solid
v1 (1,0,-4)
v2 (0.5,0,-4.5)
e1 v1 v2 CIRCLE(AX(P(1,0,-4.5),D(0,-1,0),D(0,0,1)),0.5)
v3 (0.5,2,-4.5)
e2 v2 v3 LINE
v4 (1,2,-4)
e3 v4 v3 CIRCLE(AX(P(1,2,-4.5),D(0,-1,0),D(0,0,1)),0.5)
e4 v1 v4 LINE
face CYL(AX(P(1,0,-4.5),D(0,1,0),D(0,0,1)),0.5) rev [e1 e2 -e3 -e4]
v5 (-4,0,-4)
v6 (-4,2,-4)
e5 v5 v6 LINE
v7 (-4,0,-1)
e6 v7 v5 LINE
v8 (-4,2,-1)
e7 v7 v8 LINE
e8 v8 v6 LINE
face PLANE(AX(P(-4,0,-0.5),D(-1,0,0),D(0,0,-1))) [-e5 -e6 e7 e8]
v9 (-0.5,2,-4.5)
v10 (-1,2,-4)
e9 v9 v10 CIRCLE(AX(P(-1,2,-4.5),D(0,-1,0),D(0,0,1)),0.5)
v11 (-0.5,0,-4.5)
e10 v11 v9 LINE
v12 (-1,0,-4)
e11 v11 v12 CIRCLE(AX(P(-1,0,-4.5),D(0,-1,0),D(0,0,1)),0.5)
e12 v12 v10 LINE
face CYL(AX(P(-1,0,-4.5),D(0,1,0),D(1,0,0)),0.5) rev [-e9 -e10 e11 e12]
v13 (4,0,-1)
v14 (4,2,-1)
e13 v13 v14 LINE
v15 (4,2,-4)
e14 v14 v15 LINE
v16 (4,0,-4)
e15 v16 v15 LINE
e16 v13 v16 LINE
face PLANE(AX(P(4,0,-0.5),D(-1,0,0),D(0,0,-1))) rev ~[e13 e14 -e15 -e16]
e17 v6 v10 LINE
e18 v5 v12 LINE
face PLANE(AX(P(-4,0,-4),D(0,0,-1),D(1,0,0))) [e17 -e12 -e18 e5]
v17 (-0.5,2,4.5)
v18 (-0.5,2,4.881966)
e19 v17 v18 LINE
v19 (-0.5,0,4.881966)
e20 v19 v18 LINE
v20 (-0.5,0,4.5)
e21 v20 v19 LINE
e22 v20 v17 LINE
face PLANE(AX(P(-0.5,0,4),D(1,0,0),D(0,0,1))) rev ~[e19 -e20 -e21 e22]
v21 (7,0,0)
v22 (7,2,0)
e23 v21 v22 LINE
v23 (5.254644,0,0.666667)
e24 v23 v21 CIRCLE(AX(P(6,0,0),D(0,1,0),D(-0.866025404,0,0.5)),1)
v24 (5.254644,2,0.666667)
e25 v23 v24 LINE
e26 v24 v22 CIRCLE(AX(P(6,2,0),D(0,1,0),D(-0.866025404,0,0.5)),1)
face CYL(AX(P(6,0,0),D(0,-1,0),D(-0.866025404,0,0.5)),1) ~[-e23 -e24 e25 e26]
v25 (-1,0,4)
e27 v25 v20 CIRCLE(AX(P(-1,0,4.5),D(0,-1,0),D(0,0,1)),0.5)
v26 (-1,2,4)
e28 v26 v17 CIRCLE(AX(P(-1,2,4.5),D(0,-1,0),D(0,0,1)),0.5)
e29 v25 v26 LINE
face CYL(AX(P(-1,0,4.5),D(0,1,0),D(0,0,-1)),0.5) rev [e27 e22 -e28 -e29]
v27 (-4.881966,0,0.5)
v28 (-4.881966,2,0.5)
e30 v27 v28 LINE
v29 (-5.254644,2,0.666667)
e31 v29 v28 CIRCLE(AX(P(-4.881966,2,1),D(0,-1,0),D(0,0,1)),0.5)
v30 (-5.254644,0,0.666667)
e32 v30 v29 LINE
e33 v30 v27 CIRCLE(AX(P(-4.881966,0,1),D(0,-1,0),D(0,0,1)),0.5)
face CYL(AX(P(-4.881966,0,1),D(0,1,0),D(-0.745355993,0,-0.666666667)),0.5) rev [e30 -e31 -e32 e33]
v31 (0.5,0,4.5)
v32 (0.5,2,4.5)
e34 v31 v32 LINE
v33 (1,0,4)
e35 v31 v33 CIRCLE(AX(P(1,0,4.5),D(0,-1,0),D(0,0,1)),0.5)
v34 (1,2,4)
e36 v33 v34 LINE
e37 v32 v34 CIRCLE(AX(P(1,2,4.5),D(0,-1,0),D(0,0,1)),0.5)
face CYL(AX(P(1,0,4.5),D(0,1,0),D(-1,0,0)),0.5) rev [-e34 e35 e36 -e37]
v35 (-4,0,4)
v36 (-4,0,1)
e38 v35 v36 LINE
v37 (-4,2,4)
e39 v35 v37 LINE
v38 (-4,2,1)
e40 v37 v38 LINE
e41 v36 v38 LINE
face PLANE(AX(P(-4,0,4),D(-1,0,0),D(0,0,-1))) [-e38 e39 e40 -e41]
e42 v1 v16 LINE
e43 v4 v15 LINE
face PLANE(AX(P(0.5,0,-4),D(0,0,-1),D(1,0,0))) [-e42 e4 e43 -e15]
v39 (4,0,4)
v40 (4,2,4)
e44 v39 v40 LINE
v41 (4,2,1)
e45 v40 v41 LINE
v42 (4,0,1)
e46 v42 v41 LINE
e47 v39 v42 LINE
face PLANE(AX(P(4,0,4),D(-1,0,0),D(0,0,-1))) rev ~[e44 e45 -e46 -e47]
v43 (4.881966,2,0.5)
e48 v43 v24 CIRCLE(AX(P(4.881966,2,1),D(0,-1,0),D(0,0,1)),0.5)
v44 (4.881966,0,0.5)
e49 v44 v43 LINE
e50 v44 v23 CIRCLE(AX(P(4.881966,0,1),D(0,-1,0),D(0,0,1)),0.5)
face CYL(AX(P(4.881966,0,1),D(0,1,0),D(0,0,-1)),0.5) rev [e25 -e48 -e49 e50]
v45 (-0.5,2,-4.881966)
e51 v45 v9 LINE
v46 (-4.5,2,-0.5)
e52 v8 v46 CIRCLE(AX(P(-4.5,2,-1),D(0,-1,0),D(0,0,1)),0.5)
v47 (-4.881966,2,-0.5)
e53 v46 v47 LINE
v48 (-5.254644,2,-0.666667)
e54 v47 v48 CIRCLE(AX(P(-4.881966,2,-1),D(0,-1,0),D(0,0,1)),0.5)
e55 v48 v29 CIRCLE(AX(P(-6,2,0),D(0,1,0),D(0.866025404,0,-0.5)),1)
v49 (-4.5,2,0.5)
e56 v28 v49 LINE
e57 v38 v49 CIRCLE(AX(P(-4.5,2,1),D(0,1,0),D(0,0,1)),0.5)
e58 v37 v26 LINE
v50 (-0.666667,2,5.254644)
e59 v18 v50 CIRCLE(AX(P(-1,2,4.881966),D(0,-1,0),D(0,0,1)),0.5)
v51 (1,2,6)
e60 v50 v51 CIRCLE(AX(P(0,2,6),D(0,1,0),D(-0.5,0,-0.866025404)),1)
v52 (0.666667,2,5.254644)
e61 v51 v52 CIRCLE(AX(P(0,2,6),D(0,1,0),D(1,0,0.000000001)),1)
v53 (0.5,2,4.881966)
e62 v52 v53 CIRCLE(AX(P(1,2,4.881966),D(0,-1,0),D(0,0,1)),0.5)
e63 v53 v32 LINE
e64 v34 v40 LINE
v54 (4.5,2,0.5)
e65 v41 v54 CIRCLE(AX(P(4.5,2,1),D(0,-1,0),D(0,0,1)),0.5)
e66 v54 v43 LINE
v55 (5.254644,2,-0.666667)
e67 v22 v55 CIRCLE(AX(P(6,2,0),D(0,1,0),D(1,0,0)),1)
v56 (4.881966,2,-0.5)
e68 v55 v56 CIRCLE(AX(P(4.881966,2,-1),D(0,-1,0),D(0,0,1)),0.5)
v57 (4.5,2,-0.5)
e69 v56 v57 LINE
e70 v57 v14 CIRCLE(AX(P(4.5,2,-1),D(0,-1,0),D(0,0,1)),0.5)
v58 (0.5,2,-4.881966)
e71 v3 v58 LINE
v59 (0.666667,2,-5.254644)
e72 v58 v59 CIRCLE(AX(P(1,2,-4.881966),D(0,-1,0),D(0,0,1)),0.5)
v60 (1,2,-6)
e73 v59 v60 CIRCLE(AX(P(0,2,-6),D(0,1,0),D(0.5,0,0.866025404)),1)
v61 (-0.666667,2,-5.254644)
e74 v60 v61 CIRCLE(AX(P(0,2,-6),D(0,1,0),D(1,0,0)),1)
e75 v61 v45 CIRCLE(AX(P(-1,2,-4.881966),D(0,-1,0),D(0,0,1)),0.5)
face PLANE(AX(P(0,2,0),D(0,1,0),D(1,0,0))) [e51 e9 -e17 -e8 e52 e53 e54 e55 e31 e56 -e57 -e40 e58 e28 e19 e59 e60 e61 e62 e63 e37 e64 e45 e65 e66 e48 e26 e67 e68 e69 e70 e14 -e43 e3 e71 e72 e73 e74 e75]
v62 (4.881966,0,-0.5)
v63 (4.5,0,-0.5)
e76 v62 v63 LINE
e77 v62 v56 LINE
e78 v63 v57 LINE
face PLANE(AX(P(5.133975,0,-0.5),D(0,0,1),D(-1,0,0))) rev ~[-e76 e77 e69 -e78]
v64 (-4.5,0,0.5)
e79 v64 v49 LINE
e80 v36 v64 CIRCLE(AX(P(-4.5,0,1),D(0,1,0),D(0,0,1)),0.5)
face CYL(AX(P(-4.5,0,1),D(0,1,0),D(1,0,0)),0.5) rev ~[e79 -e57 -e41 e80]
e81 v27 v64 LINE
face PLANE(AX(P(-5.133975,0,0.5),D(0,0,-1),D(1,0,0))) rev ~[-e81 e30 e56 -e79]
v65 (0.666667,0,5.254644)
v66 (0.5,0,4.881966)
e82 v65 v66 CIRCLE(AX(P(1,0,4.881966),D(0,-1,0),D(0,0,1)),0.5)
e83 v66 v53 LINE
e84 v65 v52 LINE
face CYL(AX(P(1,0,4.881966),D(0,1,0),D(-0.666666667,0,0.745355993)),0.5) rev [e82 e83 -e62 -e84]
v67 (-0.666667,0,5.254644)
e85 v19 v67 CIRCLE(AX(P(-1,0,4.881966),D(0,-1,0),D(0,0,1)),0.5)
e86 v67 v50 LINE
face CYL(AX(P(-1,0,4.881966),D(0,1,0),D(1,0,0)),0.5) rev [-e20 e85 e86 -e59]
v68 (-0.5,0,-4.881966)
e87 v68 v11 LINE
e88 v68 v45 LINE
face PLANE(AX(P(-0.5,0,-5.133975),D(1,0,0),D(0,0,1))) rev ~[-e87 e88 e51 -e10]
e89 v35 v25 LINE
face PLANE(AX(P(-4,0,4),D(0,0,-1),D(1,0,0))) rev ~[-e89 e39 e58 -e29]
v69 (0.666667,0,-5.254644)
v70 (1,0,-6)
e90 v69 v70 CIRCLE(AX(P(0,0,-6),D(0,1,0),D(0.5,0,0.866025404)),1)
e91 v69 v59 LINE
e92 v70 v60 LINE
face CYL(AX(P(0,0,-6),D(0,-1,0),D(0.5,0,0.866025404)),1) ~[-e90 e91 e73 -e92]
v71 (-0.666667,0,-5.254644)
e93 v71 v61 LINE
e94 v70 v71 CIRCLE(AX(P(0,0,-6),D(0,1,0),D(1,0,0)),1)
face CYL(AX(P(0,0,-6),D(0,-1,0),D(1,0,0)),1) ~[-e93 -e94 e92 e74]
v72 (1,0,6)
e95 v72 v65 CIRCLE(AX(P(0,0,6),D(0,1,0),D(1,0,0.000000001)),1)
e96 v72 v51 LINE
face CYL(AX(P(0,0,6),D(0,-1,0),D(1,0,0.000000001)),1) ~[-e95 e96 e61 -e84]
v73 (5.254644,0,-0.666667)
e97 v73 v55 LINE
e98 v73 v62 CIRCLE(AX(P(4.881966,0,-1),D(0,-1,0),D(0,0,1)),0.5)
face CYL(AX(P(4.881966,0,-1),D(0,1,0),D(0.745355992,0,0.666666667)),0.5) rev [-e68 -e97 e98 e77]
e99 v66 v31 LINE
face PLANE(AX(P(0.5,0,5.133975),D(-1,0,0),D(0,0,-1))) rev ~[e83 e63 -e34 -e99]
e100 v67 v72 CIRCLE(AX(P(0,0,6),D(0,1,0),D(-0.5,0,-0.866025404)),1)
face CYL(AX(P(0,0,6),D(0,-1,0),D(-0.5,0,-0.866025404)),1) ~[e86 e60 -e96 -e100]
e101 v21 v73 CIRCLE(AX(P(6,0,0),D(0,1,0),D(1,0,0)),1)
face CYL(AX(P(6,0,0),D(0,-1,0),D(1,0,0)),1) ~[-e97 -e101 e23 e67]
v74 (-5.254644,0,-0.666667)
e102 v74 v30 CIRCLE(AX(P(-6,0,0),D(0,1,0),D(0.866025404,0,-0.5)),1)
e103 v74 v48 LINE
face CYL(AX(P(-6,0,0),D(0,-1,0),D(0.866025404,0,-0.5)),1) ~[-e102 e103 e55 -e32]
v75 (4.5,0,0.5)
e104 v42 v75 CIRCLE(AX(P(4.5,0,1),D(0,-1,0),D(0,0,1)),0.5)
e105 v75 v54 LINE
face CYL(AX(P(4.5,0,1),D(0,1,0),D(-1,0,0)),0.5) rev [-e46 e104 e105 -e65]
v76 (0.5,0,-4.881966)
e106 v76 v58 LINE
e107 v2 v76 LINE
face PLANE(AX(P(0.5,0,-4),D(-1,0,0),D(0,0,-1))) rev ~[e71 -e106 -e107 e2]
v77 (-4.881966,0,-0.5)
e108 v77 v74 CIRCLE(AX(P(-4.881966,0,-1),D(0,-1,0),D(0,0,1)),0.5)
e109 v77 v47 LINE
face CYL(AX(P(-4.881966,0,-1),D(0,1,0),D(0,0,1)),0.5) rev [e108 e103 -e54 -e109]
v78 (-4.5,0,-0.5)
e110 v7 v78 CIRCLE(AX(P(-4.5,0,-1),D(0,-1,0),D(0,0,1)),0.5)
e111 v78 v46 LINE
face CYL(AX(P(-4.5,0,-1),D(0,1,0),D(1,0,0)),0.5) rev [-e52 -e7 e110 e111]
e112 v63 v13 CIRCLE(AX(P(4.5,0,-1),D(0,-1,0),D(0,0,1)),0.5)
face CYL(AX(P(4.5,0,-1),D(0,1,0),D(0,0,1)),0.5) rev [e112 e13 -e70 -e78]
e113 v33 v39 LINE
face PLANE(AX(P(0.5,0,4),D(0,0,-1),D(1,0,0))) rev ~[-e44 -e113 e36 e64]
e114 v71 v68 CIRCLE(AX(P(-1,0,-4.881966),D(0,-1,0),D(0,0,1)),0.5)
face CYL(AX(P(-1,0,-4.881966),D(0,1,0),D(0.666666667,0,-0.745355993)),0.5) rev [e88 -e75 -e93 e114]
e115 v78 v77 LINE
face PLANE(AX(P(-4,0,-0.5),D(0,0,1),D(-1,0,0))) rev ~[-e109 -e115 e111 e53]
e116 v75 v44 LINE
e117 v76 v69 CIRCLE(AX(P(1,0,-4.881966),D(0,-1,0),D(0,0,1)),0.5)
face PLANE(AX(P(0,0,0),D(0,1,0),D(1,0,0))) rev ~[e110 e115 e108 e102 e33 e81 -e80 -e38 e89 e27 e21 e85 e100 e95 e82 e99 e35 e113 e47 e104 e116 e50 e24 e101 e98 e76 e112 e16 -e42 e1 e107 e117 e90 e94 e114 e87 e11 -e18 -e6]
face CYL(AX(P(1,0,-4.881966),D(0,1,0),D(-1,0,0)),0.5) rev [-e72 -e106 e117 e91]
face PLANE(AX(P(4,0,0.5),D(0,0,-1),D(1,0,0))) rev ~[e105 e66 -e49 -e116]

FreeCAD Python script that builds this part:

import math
import FreeCAD as App
import Part
import Sketcher

V = App.Vector
Q = App.Units.Quantity


def edges_at(feature, points):
    """Names of the edges that pass closest to the given points."""
    edges = feature.Shape.Edges
    near = lambda p: min(range(len(edges)), key=lambda i: edges[i].distToShape(Part.Vertex(*p))[0])
    return sorted({f"Edge{near(p) + 1}" for p in points})

doc = App.newDocument("Part")
body = doc.addObject("PartDesign::Body", "Body")

# Sketch on XZ plane
sketch1 = body.newObject("Sketcher::SketchObject", "Sketch")
sketch1.AttachmentSupport = (doc.getObject("XZ_Plane"), [""])
sketch1.MapMode = "FlatFace"
sketch1.addGeometry(Part.LineSegment(V(-4, 0.5, 0), V(-4, 4, 0)), False)
sketch1.addGeometry(Part.LineSegment(V(-4, 4, 0), V(-0.5, 4, 0)), False)
sketch1.addGeometry(Part.LineSegment(V(-0.5, 4, 0), V(-0.5, 5.1, 0)), False)
sketch1.addGeometry(Part.ArcOfCircle(Part.Circle(V(0, 6, 0), V(0, 0, 1), 1), math.radians(0), math.radians(240)), False)
sketch1.addGeometry(Part.ArcOfCircle(Part.Circle(V(0, 6, 0), V(0, 0, 1), 1), math.radians(-60), math.radians(0)), False)
sketch1.addGeometry(Part.LineSegment(V(0.5, 5.1, 0), V(0.5, 4, 0)), False)
sketch1.addGeometry(Part.LineSegment(V(0.5, 4, 0), V(4, 4, 0)), False)
sketch1.addGeometry(Part.LineSegment(V(4, 4, 0), V(4, 0.5, 0)), False)
sketch1.addGeometry(Part.LineSegment(V(4, 0.5, 0), V(5.1, 0.5, 0)), False)
sketch1.addGeometry(Part.ArcOfCircle(Part.Circle(V(6, 0, 0), V(0, 0, 1), 1), math.radians(0), math.radians(150)), False)
sketch1.addGeometry(Part.ArcOfCircle(Part.Circle(V(6, 0, 0), V(0, 0, 1), 1), math.radians(-150), math.radians(0)), False)
sketch1.addGeometry(Part.LineSegment(V(5.1, -0.5, 0), V(4, -0.5, 0)), False)
sketch1.addGeometry(Part.LineSegment(V(4, -0.5, 0), V(4, -4, 0)), False)
sketch1.addGeometry(Part.LineSegment(V(4, -4, 0), V(0.5, -4, 0)), False)
sketch1.addGeometry(Part.LineSegment(V(0.5, -4, 0), V(0.5, -5.1, 0)), False)
sketch1.addGeometry(Part.ArcOfCircle(Part.Circle(V(0, -6, 0), V(0, 0, 1), 1), math.radians(0), math.radians(60)), False)
sketch1.addGeometry(Part.ArcOfCircle(Part.Circle(V(0, -6, 0), V(0, 0, 1), 1), math.radians(120), math.radians(360)), False)
sketch1.addGeometry(Part.LineSegment(V(-0.5, -5.1, 0), V(-0.5, -4, 0)), False)
sketch1.addGeometry(Part.LineSegment(V(-0.5, -4, 0), V(-4, -4, 0)), False)
sketch1.addGeometry(Part.LineSegment(V(-4, -4, 0), V(-4, -0.5, 0)), False)
sketch1.addGeometry(Part.LineSegment(V(-4, -0.5, 0), V(-5.1, -0.5, 0)), False)
sketch1.addGeometry(Part.ArcOfCircle(Part.Circle(V(-6, 0, 0), V(0, 0, 1), 1), math.radians(30), math.radians(330)), False)
sketch1.addGeometry(Part.LineSegment(V(-5.1, 0.5, 0), V(-4, 0.5, 0)), False)
sketch1.addConstraint(Sketcher.Constraint("Coincident", 0, 2, 1, 1))
sketch1.addConstraint(Sketcher.Constraint("Coincident", 1, 2, 2, 1))
sketch1.addConstraint(Sketcher.Constraint("Coincident", 2, 2, 3, 2))
sketch1.addConstraint(Sketcher.Constraint("Tangent", 3, 1, 4, 2))
sketch1.addConstraint(Sketcher.Constraint("Coincident", 4, 1, 5, 1))
sketch1.addConstraint(Sketcher.Constraint("Coincident", 5, 2, 6, 1))
sketch1.addConstraint(Sketcher.Constraint("Coincident", 6, 2, 7, 1))
sketch1.addConstraint(Sketcher.Constraint("Coincident", 7, 2, 8, 1))
sketch1.addConstraint(Sketcher.Constraint("Coincident", 8, 2, 9, 2))
sketch1.addConstraint(Sketcher.Constraint("Tangent", 9, 1, 10, 2))
sketch1.addConstraint(Sketcher.Constraint("Coincident", 10, 1, 11, 1))
sketch1.addConstraint(Sketcher.Constraint("Coincident", 11, 2, 12, 1))
sketch1.addConstraint(Sketcher.Constraint("Coincident", 12, 2, 13, 1))
sketch1.addConstraint(Sketcher.Constraint("Coincident", 13, 2, 14, 1))
sketch1.addConstraint(Sketcher.Constraint("Coincident", 14, 2, 15, 2))
sketch1.addConstraint(Sketcher.Constraint("Tangent", 15, 1, 16, 2))
sketch1.addConstraint(Sketcher.Constraint("Coincident", 16, 1, 17, 1))
sketch1.addConstraint(Sketcher.Constraint("Coincident", 17, 2, 18, 1))
sketch1.addConstraint(Sketcher.Constraint("Coincident", 18, 2, 19, 1))
sketch1.addConstraint(Sketcher.Constraint("Coincident", 19, 2, 20, 1))
sketch1.addConstraint(Sketcher.Constraint("Coincident", 20, 2, 21, 2))
sketch1.addConstraint(Sketcher.Constraint("Coincident", 21, 1, 22, 1))
sketch1.addConstraint(Sketcher.Constraint("Coincident", 22, 2, 0, 1))
sketch1.addConstraint(Sketcher.Constraint("Vertical", 0))
sketch1.addConstraint(Sketcher.Constraint("Horizontal", 1))
sketch1.addConstraint(Sketcher.Constraint("Vertical", 2))
sketch1.addConstraint(Sketcher.Constraint("Vertical", 5))
sketch1.addConstraint(Sketcher.Constraint("Horizontal", 6))
sketch1.addConstraint(Sketcher.Constraint("Vertical", 7))
sketch1.addConstraint(Sketcher.Constraint("Horizontal", 8))
sketch1.addConstraint(Sketcher.Constraint("Horizontal", 11))
sketch1.addConstraint(Sketcher.Constraint("Vertical", 12))
sketch1.addConstraint(Sketcher.Constraint("Horizontal", 13))
sketch1.addConstraint(Sketcher.Constraint("Vertical", 14))
sketch1.addConstraint(Sketcher.Constraint("Vertical", 17))
sketch1.addConstraint(Sketcher.Constraint("Horizontal", 18))
sketch1.addConstraint(Sketcher.Constraint("Vertical", 19))
sketch1.addConstraint(Sketcher.Constraint("Horizontal", 20))
sketch1.addConstraint(Sketcher.Constraint("Horizontal", 22))
sketch1.addConstraint(Sketcher.Constraint("Equal", 3, 4))
sketch1.addConstraint(Sketcher.Constraint("Equal", 4, 9))
sketch1.addConstraint(Sketcher.Constraint("Equal", 9, 10))
sketch1.addConstraint(Sketcher.Constraint("Equal", 10, 15))
sketch1.addConstraint(Sketcher.Constraint("Equal", 15, 16))
sketch1.addConstraint(Sketcher.Constraint("Equal", 16, 21))
sketch1.addConstraint(Sketcher.Constraint("Symmetric", 3, 3, 15, 3, -1, 1))
sketch1.addConstraint(Sketcher.Constraint("Symmetric", 9, 3, 21, 3, -1, 1))
sketch1.addConstraint(Sketcher.Constraint("Symmetric", 0, 2, 12, 2, -1, 1))
sketch1.addConstraint(Sketcher.Constraint("Symmetric", 5, 2, 17, 2, -1, 1))
sketch1.addConstraint(Sketcher.Constraint("Symmetric", 7, 2, 19, 2, -1, 1))
sketch1.addConstraint(Sketcher.Constraint("Symmetric", 2, 2, 4, 1, -2))
sketch1.addConstraint(Sketcher.Constraint("Symmetric", 0, 2, 6, 2, -2))
sketch1.addConstraint(Sketcher.Constraint("Symmetric", 10, 1, 20, 2, -2))
sketch1.addConstraint(Sketcher.Constraint("PointOnObject", 9, 1, -1))
sketch1.addConstraint(Sketcher.Constraint("Horizontal", 4, 3, 3, 1))
sketch1.addConstraint(Sketcher.Constraint("Horizontal", 16, 3, 15, 1))
sketch1.addConstraint(Sketcher.Constraint("Horizontal", 14, 2, 16, 1))
sketch1.addConstraint(Sketcher.Constraint("Horizontal", 8, 2, 21, 1))
sketch1.addConstraint(Sketcher.Constraint("Equal", 18, 0))
sketch1.addConstraint(Sketcher.Constraint("Equal", 22, 2))
sketch1.addConstraint(Sketcher.Constraint("Radius", 3, Q("1 mm")))
sketch1.addConstraint(Sketcher.Constraint("DistanceX", 1, 1, 1, 2, Q("3.5 mm")))
sketch1.addConstraint(Sketcher.Constraint("DistanceY", -1, 1, 3, 3, Q("6 mm")))
sketch1.addConstraint(Sketcher.Constraint("DistanceX", -1, 1, 9, 3, Q("6 mm")))
sketch1.addConstraint(Sketcher.Constraint("DistanceX", 0, 2, -1, 1, Q("4 mm")))
pad1 = body.newObject("PartDesign::Pad", "Pad")
pad1.Profile = sketch1
pad1.Length = 2
pad1.Reversed = True
doc.recompute()

fillet = body.newObject("PartDesign::Fillet", "Fillet")
fillet.Base = (pad1, edges_at(pad1, [
    (0.5, 1, -4),
    (4, 1, -0.5),
    (5.134, 1, -0.5),
    (5.134, 1, 0.5),
    (4, 1, 0.5),
    (0.5, 1, 4),
    (0.5, 1, 5.134),
    (-0.5, 1, 5.134),
    (-0.5, 1, 4),
    (-4, 1, 0.5),
    (-5.134, 1, 0.5),
    (-5.134, 1, -0.5),
    (-4, 1, -0.5),
    (-0.5, 1, -4),
    (-0.5, 1, -5.134),
    (0.5, 1, -5.134),
]))
fillet.Radius = 0.5

doc.recompute()
